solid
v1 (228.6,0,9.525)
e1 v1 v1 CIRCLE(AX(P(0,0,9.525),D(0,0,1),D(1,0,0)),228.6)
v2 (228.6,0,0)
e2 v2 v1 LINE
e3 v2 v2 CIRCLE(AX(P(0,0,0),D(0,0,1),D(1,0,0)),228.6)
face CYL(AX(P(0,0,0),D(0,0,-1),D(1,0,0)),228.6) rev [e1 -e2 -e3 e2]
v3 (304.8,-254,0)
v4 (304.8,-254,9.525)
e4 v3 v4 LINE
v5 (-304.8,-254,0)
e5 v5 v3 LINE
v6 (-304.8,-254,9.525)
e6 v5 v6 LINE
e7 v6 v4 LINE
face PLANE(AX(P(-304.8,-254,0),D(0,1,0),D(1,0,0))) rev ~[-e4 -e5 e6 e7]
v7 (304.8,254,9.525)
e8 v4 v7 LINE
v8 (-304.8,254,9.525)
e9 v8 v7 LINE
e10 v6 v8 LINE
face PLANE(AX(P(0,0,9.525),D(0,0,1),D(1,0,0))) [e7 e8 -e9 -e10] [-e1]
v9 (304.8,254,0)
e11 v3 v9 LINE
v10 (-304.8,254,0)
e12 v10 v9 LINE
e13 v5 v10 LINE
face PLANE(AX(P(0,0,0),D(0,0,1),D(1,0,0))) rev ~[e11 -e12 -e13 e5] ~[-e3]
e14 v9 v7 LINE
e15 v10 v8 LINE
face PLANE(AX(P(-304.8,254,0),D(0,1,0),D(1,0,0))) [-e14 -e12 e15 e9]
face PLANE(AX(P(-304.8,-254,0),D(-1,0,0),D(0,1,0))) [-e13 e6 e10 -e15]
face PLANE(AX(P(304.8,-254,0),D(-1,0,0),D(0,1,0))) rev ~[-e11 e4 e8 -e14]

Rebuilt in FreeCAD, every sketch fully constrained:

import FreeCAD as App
import Part
import Sketcher

V = App.Vector
Q = App.Units.Quantity


def add_polygon(sketch, points):
    """Adds a closed chain of lines whose ends are joined by coincident constraints."""
    first, n = sketch.GeometryCount, len(points)
    for a, b in zip(points, points[1:] + points[:1]):
        sketch.addGeometry(Part.LineSegment(App.Vector(*a, 0), App.Vector(*b, 0)), False)
    for i in range(n):
        sketch.addConstraint(Sketcher.Constraint("Coincident", first + i, 2, first + (i + 1) % n, 1))

doc = App.newDocument("Part")
body = doc.addObject("PartDesign::Body", "Body")

sketch1 = body.newObject("Sketcher::SketchObject", "Sketch")
sketch1.AttachmentSupport = (doc.getObject("XY_Plane"), [""])
sketch1.MapMode = "FlatFace"
add_polygon(sketch1, [(-305, 254), (-305, -254), (305, -254), (305, 254)])
sketch1.addGeometry(Part.Circle(V(0, 0, 0), V(0, 0, 1), 229), False)
sketch1.addConstraint(Sketcher.Constraint("Vertical", 0))
sketch1.addConstraint(Sketcher.Constraint("Horizontal", 1))
sketch1.addConstraint(Sketcher.Constraint("Vertical", 2))
sketch1.addConstraint(Sketcher.Constraint("Horizontal", 3))
sketch1.addConstraint(Sketcher.Constraint("Coincident", 4, 3, -1, 1))
sketch1.addConstraint(Sketcher.Constraint("Symmetric", 0, 2, 2, 2, -1, 1))
sketch1.addConstraint(Sketcher.Constraint("Diameter", 4, Q("18 in")))
sketch1.addConstraint(Sketcher.Constraint("DistanceX", 1, 1, 1, 2, Q("24 in")))
sketch1.addConstraint(Sketcher.Constraint("DistanceY", 0, 2, 0, 1, Q("20 in")))
pad1 = body.newObject("PartDesign::Pad", "Pad")
pad1.Profile = sketch1
pad1.Length = Q("0.375 in")

doc.recompute()
